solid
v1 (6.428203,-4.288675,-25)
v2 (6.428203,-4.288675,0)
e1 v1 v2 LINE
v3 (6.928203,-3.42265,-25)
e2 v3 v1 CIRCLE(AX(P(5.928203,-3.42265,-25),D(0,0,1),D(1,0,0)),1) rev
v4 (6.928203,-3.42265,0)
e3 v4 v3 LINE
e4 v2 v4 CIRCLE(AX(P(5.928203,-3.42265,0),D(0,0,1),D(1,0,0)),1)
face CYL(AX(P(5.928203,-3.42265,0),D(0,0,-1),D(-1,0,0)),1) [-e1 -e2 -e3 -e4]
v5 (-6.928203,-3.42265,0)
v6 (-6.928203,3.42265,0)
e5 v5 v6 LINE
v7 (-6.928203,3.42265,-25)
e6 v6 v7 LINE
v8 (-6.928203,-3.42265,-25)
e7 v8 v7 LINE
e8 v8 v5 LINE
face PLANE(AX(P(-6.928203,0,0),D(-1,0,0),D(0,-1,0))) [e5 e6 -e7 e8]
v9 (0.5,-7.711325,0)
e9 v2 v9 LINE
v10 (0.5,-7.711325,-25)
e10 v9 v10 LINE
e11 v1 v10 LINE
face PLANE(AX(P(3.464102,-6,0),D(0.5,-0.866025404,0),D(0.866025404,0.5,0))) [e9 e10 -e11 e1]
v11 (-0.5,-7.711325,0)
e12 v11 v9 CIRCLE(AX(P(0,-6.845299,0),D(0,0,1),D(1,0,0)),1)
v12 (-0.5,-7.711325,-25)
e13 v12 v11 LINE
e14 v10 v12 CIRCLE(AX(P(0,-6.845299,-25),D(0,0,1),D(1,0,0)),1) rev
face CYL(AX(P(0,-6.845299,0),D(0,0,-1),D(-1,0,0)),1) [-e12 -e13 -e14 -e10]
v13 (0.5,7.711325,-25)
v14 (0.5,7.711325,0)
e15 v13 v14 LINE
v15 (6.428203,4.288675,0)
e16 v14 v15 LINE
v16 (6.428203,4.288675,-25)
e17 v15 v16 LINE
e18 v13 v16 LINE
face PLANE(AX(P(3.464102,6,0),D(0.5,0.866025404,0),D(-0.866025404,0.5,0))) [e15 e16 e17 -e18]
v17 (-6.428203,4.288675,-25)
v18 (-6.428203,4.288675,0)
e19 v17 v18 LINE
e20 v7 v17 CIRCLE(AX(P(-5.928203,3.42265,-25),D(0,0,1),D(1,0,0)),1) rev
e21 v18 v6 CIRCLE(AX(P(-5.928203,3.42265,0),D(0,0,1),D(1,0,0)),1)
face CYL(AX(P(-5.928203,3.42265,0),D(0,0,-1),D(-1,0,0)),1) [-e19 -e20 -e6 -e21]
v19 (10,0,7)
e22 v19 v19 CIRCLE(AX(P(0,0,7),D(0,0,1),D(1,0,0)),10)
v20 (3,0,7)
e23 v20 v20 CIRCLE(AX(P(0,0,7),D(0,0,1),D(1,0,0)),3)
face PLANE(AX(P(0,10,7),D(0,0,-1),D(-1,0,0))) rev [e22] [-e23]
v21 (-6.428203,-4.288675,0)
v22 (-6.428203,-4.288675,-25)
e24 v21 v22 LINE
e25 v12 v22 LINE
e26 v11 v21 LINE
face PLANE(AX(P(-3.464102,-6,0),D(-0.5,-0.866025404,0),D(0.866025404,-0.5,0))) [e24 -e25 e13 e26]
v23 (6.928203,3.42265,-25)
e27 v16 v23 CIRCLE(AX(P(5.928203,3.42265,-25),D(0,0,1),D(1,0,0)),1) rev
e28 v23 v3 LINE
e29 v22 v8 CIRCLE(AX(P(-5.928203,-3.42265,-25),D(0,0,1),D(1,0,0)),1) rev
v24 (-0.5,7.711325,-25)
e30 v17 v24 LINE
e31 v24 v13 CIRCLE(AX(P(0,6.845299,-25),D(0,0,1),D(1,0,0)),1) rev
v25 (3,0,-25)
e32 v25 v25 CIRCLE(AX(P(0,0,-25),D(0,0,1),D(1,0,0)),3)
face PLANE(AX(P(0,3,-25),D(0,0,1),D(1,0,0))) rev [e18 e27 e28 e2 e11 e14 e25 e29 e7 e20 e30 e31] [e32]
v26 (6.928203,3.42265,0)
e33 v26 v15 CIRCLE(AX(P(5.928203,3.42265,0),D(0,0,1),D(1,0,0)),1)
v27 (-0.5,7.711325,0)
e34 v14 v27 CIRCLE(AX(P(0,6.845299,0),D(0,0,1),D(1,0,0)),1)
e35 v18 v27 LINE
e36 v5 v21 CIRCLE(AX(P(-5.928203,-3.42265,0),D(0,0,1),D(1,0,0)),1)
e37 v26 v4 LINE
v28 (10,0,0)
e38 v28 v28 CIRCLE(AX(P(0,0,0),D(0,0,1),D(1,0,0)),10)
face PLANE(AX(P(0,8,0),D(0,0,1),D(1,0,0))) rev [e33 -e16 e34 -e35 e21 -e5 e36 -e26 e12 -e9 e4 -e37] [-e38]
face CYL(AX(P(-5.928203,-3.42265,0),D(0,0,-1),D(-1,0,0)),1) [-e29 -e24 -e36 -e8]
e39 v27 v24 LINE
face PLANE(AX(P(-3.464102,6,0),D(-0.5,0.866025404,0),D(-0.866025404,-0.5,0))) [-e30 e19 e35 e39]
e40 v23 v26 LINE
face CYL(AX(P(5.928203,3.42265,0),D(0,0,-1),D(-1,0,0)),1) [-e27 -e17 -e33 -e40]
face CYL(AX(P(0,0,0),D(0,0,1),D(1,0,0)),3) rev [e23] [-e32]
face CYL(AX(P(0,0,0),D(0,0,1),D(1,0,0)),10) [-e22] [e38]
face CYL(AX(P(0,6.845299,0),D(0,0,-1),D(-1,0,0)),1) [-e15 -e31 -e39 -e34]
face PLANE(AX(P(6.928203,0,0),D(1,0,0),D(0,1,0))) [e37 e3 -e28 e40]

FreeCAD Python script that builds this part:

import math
import FreeCAD as App
import Part
import Sketcher
from FreeCAD import Vector
Q = App.Units.Quantity


def edges_at(feature, points):
    """Names of the edges that pass closest to the given points."""
    edges = feature.Shape.Edges
    near = lambda p: min(range(len(edges)), key=lambda i: edges[i].distToShape(Part.Vertex(*p))[0])
    return sorted({f"Edge{near(p) + 1}" for p in points})

doc = App.newDocument("Part")
params = doc.addObject("Spreadsheet::Sheet", "Params")
for row, (alias, value) in enumerate([
    ("sketch1_width", "5 mm"),
    ("sketch1_width2", "2 mm"),
    ("sketch1_height", "32 mm"),
    ("revolution_angle", "360 deg"),
    ("sketch2_radius", "8 mm"),
    ("sketch2_height", "8 mm"),
    ("pocket1_length", "25 mm"),
    ("fillet_radius", "1 mm"),
], start=1):
    params.set(f"A{row}", alias)
    params.set(f"B{row}", "=" + value)
    params.setAlias(f"B{row}", alias)

body = doc.addObject("PartDesign::Body", "Body")

# Sketch on YZ plane
sketch1 = doc.addObject("Sketcher::SketchObject", "Sketch")
body.addObject(sketch1)
sketch1.AttachmentSupport = (doc.YZ_Plane, [""])
sketch1.MapMode = "FlatFace"
sketch1.addGeometry(Part.LineSegment(Vector(3, 7, 0), Vector(3, -25, 0)), False)
sketch1.addGeometry(Part.LineSegment(Vector(3, -25, 0), Vector(8, -25, 0)), False)
sketch1.addGeometry(Part.LineSegment(Vector(8, -25, 0), Vector(8, 0, 0)), False)
sketch1.addGeometry(Part.LineSegment(Vector(8, 0, 0), Vector(10, 0, 0)), False)
sketch1.addGeometry(Part.LineSegment(Vector(10, 0, 0), Vector(10, 7, 0)), False)
sketch1.addGeometry(Part.LineSegment(Vector(10, 7, 0), Vector(3, 7, 0)), False)
sketch1.addConstraint(Sketcher.Constraint("Coincident", 0, 2, 1, 1))
sketch1.addConstraint(Sketcher.Constraint("Coincident", 1, 2, 2, 1))
sketch1.addConstraint(Sketcher.Constraint("Coincident", 2, 2, 3, 1))
sketch1.addConstraint(Sketcher.Constraint("Coincident", 3, 2, 4, 1))
sketch1.addConstraint(Sketcher.Constraint("Coincident", 4, 2, 5, 1))
sketch1.addConstraint(Sketcher.Constraint("Coincident", 5, 2, 0, 1))
sketch1.addConstraint(Sketcher.Constraint("Vertical", 0))
sketch1.addConstraint(Sketcher.Constraint("Horizontal", 1))
sketch1.addConstraint(Sketcher.Constraint("Vertical", 2))
sketch1.addConstraint(Sketcher.Constraint("Horizontal", 3))
sketch1.addConstraint(Sketcher.Constraint("Vertical", 4))
sketch1.addConstraint(Sketcher.Constraint("Horizontal", 5))
sketch1.addConstraint(Sketcher.Constraint("PointOnObject", 2, 2, -1))
sketch1.addConstraint(Sketcher.Constraint("Equal", 5, 4))
sketch1.addConstraint(Sketcher.Constraint("DistanceX", 1, 1, 1, 2, Q("5 mm")))
sketch1.addConstraint(Sketcher.Constraint("DistanceX", 3, 1, 3, 2, Q("2 mm")))
sketch1.addConstraint(Sketcher.Constraint("DistanceY", 0, 2, 0, 1, Q("32 mm")))
sketch1.addConstraint(Sketcher.Constraint("DistanceX", -1, 1, 0, 2, Q("3 mm")))
sketch1.setExpression("Constraints[14]", "Params.sketch1_width")
sketch1.setExpression("Constraints[15]", "Params.sketch1_width2")
sketch1.setExpression("Constraints[16]", "Params.sketch1_height")
revolution = doc.addObject("PartDesign::Revolution", "Revolution")
body.addObject(revolution)
revolution.Profile = sketch1
revolution.ReferenceAxis = (sketch1, ["V_Axis"])
revolution.setExpression("Angle", "Params.revolution_angle")

# Sketch on XY plane
sketch2 = doc.addObject("Sketcher::SketchObject", "Sketch001")
body.addObject(sketch2)
sketch2.AttachmentSupport = (doc.XY_Plane, [""])
sketch2.MapMode = "FlatFace"
sketch2.AttachmentOffset = App.Placement(Vector(0, 0, -25), App.Rotation())
sketch2.addGeometry(Part.ArcOfCircle(Part.Circle(Vector(0, 0, 0), Vector(0, 0, 1), 8), math.radians(30), math.radians(90)), False)
sketch2.addGeometry(Part.LineSegment(Vector(6.928203, 4, 0), Vector(0, 8, 0)), False)
sketch2.addGeometry(Part.ArcOfCircle(Part.Circle(Vector(0, 0, 0), Vector(0, 0, 1), 8), math.radians(-30), math.radians(30)), False)
sketch2.addGeometry(Part.LineSegment(Vector(6.928203, -4, 0), Vector(6.928203, 4, 0)), False)
sketch2.addGeometry(Part.ArcOfCircle(Part.Circle(Vector(0, 0, 0), Vector(0, 0, 1), 8), math.radians(-90), math.radians(-30)), False)
sketch2.addGeometry(Part.LineSegment(Vector(0, -8, 0), Vector(6.928203, -4, 0)), False)
sketch2.addGeometry(Part.LineSegment(Vector(-6.928203, -4, 0), Vector(0, -8, 0)), False)
sketch2.addGeometry(Part.ArcOfCircle(Part.Circle(Vector(0, 0, 0), Vector(0, 0, 1), 8), math.radians(-150), math.radians(-90)), False)
sketch2.addGeometry(Part.LineSegment(Vector(-6.928203, 4, 0), Vector(-6.928203, -4, 0)), False)
sketch2.addGeometry(Part.ArcOfCircle(Part.Circle(Vector(0, 0, 0), Vector(0, 0, 1), 8), math.radians(-180), math.radians(-150)), False)
sketch2.addGeometry(Part.ArcOfCircle(Part.Circle(Vector(0, 0, 0), Vector(0, 0, 1), 8), math.radians(150), math.radians(180)), False)
sketch2.addGeometry(Part.LineSegment(Vector(0, 8, 0), Vector(-6.928203, 4, 0)), False)
sketch2.addGeometry(Part.ArcOfCircle(Part.Circle(Vector(0, 0, 0), Vector(0, 0, 1), 8), math.radians(90), math.radians(150)), False)
sketch2.addConstraint(Sketcher.Constraint("Coincident", 0, 1, 1, 1))
sketch2.addConstraint(Sketcher.Constraint("Coincident", 1, 2, 0, 2))
sketch2.addConstraint(Sketcher.Constraint("Coincident", 2, 1, 3, 1))
sketch2.addConstraint(Sketcher.Constraint("Coincident", 3, 2, 2, 2))
sketch2.addConstraint(Sketcher.Constraint("Coincident", 4, 1, 5, 1))
sketch2.addConstraint(Sketcher.Constraint("Coincident", 5, 2, 4, 2))
sketch2.addConstraint(Sketcher.Constraint("Coincident", 6, 1, 7, 1))
sketch2.addConstraint(Sketcher.Constraint("Coincident", 7, 2, 6, 2))
sketch2.addConstraint(Sketcher.Constraint("Coincident", 8, 2, 9, 2))
sketch2.addConstraint(Sketcher.Constraint("Tangent", 9, 1, 10, 2))
sketch2.addConstraint(Sketcher.Constraint("Coincident", 10, 1, 8, 1))
sketch2.addConstraint(Sketcher.Constraint("Coincident", 11, 1, 12, 1))
sketch2.addConstraint(Sketcher.Constraint("Coincident", 12, 2, 11, 2))
sketch2.addConstraint(Sketcher.Constraint("Vertical", 3))
sketch2.addConstraint(Sketcher.Constraint("Vertical", 8))
sketch2.addConstraint(Sketcher.Constraint("Coincident", 0, 3, -1, 1))
sketch2.addConstraint(Sketcher.Constraint("Coincident", 2, 3, -1, 1))
sketch2.addConstraint(Sketcher.Constraint("Coincident", 4, 3, -1, 1))
sketch2.addConstraint(Sketcher.Constraint("Coincident", 7, 3, -1, 1))
sketch2.addConstraint(Sketcher.Constraint("Coincident", 9, 3, -1, 1))
sketch2.addConstraint(Sketcher.Constraint("Coincident", 12, 3, -1, 1))
sketch2.addConstraint(Sketcher.Constraint("Coincident", 3, 2, 0, 1))
sketch2.addConstraint(Sketcher.Constraint("Coincident", 5, 2, 2, 1))
sketch2.addConstraint(Sketcher.Constraint("Coincident", 7, 2, 4, 1))
sketch2.addConstraint(Sketcher.Constraint("Coincident", 8, 2, 6, 1))
sketch2.addConstraint(Sketcher.Constraint("Coincident", 11, 1, 1, 2))
sketch2.addConstraint(Sketcher.Constraint("Coincident", 12, 2, 10, 1))
sketch2.addConstraint(Sketcher.Constraint("PointOnObject", 1, 2, -2))
sketch2.addConstraint(Sketcher.Constraint("PointOnObject", 4, 1, -2))
sketch2.addConstraint(Sketcher.Constraint("PointOnObject", 9, 1, -1))
sketch2.addConstraint(Sketcher.Constraint("Parallel", 1, 6))
sketch2.addConstraint(Sketcher.Constraint("Radius", 0, Q("8 mm")))
sketch2.addConstraint(Sketcher.Constraint("DistanceY", 3, 1, 3, 2, Q("8 mm")))
sketch2.setExpression("Constraints[31]", "Params.sketch2_radius")
sketch2.setExpression("Constraints[32]", "Params.sketch2_height")
pocket1 = doc.addObject("PartDesign::Pocket", "Pocket")
body.addObject(pocket1)
pocket1.Profile = sketch2
pocket1.setExpression("Length", "Params.pocket1_length")
pocket1.Reversed = True
doc.recompute()

fillet = doc.addObject("PartDesign::Fillet", "Fillet")
body.addObject(fillet)
fillet.Base = (pocket1, edges_at(pocket1, [
    (0, 8, -12.5),
    (6.928, 4, -12.5),
    (6.928, -4, -12.5),
    (0, -8, -12.5),
    (-6.928, -4, -12.5),
    (-6.928, 4, -12.5),
]))
fillet.setExpression("Radius", "Params.fillet_radius")

doc.recompute()
